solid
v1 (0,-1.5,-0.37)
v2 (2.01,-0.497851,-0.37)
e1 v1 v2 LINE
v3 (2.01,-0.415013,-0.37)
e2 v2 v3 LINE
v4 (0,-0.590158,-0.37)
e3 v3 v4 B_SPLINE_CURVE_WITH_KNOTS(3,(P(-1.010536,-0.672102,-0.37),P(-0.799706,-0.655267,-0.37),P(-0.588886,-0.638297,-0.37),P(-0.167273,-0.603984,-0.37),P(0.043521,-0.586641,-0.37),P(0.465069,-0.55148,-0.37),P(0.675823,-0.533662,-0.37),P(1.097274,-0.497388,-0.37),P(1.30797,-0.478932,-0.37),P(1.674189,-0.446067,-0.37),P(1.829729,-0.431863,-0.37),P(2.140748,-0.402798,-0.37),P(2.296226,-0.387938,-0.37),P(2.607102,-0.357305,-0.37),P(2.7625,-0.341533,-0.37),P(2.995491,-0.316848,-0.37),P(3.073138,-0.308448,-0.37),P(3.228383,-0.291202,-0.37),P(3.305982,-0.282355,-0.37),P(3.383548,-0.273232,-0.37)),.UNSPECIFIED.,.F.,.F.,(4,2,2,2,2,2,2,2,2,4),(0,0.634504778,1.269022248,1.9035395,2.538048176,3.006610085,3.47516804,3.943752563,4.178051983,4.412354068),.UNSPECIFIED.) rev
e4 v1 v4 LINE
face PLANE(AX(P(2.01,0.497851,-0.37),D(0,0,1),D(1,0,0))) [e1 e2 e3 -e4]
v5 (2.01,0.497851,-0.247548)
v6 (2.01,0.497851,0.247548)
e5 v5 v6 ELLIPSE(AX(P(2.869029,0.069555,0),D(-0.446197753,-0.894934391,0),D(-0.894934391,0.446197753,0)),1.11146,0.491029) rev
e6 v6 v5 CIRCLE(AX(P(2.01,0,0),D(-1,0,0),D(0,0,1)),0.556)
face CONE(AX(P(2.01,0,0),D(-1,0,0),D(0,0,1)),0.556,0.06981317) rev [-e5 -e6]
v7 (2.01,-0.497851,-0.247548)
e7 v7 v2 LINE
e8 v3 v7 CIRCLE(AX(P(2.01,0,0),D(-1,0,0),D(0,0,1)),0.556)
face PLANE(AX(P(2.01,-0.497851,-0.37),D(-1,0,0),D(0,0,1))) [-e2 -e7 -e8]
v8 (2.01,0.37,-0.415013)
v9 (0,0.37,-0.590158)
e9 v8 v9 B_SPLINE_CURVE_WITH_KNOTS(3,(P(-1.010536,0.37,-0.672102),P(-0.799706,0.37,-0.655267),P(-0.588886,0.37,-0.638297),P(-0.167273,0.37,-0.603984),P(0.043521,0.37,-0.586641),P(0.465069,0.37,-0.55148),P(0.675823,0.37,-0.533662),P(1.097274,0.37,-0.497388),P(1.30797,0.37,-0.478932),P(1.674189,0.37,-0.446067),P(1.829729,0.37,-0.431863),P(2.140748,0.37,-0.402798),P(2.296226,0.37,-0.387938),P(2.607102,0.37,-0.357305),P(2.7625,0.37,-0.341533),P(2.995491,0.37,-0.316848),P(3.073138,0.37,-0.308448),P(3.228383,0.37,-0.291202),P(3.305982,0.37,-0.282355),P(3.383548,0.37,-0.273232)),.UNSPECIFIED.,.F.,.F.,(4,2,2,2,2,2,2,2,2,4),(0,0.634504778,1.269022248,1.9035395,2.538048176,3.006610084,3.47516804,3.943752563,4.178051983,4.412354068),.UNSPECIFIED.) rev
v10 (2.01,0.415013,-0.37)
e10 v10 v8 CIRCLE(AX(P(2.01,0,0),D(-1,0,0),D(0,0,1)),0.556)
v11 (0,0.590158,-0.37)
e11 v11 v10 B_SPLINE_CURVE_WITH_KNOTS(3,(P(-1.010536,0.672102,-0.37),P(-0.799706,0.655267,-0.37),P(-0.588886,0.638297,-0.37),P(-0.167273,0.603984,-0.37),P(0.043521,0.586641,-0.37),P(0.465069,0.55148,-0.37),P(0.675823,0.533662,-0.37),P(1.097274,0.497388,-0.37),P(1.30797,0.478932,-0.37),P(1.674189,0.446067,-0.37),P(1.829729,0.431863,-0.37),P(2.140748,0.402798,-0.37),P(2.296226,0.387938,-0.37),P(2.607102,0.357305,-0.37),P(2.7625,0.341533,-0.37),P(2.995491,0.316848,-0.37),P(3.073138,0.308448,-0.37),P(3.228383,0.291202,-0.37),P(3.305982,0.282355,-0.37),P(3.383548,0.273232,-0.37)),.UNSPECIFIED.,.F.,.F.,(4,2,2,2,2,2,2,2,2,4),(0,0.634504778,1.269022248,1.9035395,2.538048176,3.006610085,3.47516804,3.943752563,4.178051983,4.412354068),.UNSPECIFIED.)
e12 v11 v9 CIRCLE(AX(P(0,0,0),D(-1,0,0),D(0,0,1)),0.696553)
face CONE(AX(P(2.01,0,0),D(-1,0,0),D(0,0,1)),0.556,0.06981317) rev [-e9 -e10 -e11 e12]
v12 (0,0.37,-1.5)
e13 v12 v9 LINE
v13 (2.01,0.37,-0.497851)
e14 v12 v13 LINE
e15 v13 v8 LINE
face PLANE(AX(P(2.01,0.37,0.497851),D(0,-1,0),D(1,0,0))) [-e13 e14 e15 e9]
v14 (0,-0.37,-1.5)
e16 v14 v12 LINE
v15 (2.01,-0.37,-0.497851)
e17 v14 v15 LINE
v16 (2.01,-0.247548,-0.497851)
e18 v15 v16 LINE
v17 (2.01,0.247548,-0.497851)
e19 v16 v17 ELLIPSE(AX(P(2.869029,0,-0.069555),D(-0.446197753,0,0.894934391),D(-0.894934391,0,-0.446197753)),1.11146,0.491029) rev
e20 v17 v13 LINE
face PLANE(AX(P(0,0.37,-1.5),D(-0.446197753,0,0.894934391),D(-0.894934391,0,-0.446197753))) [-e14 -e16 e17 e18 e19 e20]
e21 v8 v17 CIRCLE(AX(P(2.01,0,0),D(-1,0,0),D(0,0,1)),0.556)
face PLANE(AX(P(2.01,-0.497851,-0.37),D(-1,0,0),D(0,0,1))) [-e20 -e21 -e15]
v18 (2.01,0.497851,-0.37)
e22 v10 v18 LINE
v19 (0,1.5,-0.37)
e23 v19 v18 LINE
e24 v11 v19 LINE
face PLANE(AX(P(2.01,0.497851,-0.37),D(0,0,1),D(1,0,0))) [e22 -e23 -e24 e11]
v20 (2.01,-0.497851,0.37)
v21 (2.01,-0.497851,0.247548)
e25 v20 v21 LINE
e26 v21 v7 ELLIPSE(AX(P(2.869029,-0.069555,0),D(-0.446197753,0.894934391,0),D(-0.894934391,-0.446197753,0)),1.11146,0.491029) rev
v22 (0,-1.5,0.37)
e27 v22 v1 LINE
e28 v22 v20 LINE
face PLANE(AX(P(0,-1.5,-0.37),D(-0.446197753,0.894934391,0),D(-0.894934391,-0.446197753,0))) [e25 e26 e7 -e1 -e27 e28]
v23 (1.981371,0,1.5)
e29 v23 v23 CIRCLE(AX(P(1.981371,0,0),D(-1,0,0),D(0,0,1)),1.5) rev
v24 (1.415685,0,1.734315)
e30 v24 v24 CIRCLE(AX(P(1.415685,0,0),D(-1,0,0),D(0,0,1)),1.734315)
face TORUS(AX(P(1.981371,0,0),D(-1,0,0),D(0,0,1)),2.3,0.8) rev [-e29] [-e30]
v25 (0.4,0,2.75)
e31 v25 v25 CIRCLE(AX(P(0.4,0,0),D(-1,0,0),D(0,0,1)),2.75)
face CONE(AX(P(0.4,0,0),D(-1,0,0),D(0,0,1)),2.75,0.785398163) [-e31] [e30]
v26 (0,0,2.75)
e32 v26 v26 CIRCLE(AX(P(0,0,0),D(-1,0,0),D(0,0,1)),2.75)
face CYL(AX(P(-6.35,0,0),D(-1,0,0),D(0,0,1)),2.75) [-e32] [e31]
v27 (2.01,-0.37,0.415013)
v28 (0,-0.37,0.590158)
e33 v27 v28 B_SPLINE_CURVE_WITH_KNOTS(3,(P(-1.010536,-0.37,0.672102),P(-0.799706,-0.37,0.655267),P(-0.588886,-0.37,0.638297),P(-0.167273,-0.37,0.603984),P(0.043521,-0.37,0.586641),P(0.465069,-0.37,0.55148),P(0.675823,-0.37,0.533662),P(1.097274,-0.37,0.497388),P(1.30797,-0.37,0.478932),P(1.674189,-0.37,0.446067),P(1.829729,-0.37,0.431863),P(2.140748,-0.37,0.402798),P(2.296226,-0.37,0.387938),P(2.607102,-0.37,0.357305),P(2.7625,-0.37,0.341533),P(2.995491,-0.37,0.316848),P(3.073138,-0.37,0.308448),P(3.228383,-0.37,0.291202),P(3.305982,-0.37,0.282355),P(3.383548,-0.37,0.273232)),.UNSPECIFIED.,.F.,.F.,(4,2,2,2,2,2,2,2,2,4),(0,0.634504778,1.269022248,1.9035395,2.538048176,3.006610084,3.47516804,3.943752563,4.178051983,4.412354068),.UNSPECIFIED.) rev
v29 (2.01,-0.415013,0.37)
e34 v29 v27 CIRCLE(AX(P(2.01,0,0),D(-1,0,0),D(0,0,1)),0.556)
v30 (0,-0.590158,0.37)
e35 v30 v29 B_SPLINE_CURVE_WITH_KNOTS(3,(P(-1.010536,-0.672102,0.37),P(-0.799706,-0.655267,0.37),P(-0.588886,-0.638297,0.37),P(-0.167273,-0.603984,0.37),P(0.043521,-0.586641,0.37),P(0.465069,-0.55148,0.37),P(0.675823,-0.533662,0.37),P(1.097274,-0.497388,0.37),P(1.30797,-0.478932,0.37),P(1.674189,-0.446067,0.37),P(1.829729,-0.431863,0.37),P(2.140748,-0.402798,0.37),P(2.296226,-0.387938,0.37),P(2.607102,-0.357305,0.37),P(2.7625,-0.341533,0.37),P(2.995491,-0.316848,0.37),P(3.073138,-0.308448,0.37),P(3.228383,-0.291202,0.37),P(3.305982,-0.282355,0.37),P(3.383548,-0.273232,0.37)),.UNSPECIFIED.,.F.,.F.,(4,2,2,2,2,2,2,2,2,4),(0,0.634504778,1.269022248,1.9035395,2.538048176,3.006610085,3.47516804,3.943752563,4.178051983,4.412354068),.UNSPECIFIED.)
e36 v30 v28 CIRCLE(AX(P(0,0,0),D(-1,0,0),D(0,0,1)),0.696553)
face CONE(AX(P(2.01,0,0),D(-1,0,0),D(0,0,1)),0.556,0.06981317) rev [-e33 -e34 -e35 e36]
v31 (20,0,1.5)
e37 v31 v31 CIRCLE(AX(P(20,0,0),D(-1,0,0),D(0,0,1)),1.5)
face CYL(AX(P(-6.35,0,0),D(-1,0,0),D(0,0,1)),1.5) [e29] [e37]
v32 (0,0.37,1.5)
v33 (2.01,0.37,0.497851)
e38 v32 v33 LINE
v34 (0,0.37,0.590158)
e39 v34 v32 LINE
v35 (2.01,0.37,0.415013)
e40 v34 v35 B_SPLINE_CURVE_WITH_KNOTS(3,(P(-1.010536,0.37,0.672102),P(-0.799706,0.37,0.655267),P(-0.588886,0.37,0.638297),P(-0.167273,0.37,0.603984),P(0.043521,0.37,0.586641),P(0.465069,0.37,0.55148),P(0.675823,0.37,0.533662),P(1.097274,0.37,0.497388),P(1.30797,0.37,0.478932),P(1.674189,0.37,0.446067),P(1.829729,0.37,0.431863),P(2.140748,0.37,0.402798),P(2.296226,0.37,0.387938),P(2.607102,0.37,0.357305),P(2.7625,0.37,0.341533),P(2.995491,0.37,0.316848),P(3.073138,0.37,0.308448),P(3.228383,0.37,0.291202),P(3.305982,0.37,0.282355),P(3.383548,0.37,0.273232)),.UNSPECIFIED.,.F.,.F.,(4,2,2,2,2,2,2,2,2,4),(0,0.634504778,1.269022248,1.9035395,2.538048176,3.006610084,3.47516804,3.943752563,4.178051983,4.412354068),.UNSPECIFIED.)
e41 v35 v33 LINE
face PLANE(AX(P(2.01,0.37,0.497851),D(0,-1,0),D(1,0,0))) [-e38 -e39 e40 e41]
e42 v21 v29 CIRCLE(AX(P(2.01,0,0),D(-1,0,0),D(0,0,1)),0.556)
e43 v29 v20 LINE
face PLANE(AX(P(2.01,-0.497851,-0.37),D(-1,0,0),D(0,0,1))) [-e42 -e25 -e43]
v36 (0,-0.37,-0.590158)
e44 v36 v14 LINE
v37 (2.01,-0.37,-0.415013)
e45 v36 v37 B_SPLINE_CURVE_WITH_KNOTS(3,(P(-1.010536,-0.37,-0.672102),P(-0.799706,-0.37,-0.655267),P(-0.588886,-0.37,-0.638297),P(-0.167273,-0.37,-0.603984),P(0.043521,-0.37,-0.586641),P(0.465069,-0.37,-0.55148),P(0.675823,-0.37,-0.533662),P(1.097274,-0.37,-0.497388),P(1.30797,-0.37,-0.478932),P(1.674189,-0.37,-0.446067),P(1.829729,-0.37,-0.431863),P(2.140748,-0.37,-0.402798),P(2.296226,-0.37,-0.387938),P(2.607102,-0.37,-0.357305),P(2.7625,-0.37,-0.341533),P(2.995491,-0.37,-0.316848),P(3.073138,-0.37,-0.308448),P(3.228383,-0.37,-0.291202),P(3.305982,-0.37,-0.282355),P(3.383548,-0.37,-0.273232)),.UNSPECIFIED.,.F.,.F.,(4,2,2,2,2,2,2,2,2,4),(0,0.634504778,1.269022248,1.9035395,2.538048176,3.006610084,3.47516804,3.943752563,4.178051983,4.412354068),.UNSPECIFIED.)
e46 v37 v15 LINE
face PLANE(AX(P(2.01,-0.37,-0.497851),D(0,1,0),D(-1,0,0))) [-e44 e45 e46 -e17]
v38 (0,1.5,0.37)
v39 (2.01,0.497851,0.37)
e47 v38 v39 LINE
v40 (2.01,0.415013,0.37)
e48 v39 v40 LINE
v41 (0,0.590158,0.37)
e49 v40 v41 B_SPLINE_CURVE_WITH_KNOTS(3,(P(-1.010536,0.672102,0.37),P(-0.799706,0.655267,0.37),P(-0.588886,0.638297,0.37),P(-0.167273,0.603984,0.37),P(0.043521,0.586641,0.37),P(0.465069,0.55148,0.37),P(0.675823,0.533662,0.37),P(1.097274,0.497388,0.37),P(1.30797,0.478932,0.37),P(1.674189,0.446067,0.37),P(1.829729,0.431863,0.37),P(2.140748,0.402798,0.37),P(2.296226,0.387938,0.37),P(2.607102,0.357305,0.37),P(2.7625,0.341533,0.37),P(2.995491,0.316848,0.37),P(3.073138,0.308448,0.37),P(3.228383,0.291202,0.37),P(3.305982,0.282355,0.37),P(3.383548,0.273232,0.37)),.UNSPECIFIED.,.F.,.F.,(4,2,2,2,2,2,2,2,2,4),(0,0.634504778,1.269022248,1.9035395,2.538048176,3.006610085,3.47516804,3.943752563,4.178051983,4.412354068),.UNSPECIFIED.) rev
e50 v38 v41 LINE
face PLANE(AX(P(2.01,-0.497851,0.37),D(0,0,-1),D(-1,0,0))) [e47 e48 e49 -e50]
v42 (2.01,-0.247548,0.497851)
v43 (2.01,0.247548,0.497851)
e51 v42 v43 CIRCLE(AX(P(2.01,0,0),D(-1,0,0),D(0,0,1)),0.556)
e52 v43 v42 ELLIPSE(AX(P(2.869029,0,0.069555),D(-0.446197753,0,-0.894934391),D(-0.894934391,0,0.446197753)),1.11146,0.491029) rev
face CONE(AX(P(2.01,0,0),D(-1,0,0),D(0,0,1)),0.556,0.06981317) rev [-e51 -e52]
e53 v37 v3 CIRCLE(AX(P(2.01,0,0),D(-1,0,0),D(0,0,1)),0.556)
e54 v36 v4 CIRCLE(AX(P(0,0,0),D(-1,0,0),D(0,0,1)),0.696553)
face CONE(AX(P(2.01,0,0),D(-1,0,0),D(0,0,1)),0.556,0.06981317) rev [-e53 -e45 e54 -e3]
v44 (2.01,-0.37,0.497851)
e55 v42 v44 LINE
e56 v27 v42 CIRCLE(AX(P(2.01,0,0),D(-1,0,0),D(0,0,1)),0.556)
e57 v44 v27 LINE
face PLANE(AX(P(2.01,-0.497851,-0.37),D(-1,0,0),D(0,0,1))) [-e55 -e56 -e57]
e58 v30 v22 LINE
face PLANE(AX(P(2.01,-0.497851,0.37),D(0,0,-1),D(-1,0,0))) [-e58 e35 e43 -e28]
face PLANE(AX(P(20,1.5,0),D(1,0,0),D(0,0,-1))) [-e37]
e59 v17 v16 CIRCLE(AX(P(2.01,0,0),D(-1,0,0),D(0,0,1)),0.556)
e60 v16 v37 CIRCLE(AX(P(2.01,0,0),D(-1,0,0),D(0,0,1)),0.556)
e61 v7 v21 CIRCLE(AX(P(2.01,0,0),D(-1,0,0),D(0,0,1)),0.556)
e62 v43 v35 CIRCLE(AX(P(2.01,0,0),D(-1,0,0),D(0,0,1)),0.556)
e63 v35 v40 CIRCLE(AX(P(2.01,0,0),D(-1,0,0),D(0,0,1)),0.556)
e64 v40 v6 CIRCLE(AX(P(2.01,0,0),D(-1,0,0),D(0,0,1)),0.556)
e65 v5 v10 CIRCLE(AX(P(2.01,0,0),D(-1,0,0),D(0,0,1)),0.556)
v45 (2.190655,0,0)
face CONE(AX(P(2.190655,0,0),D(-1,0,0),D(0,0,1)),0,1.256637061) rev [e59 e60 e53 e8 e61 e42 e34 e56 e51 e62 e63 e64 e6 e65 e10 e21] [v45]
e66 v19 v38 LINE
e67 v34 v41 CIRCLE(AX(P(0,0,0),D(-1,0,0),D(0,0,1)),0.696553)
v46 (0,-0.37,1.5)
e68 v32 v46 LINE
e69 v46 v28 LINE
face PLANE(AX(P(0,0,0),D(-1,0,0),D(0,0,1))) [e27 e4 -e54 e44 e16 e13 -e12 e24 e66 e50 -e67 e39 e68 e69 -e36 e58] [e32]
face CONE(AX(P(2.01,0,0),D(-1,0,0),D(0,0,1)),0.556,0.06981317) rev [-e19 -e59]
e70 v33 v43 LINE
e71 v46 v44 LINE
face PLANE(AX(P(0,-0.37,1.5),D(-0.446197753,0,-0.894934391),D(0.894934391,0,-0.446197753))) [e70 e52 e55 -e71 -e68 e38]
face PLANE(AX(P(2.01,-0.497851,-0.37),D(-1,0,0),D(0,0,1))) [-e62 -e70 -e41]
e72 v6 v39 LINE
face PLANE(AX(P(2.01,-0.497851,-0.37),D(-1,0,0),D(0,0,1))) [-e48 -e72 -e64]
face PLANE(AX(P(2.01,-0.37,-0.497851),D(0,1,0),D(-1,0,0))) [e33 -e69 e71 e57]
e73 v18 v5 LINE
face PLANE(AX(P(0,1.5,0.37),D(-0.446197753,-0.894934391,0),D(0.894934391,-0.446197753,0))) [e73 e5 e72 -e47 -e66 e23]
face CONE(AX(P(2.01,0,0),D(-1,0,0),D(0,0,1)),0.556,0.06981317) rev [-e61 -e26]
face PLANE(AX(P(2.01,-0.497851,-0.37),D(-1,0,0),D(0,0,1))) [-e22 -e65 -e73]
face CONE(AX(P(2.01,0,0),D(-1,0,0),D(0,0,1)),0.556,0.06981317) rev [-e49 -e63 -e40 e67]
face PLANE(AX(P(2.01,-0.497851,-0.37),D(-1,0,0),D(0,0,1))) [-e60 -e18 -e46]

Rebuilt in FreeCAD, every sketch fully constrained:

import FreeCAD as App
import Part
import Sketcher

V = App.Vector
Q = App.Units.Quantity


def edges_at(feature, points):
    """Names of the edges that pass closest to the given points."""
    edges = feature.Shape.Edges
    near = lambda p: min(range(len(edges)), key=lambda i: edges[i].distToShape(Part.Vertex(*p))[0])
    return sorted({f"Edge{near(p) + 1}" for p in points})

doc = App.newDocument("Part")
params = doc.addObject("Spreadsheet::Sheet", "Params")
for row, (alias, value) in enumerate([
    ("sketch1_width", "20 mm"),
    ("sketch1_width2", "0.4 mm"),
    ("sketch1_height", "1.5 mm"),
    ("sketch1_width3", "18.35 mm"),
    ("revolution_angle", "360 deg"),
    ("fillet_radius", "0.8 mm"),
    ("sketch2_width", "3 mm"),
    ("sketch2_height", "0.74 mm"),
    ("sketch3_height", "0.74 mm"),
    ("groove_angle", "360 deg"),
], start=1):
    params.set(f"A{row}", alias)
    params.set(f"B{row}", "=" + value)
    params.setAlias(f"B{row}", alias)

body = doc.addObject("PartDesign::Body", "Body")

sketch1 = body.newObject("Sketcher::SketchObject", "Sketch")
sketch1.AttachmentSupport = (doc.getObject("XY_Plane"), [""])
sketch1.MapMode = "FlatFace"
sketch1.addGeometry(Part.LineSegment(V(0, 2.75, 0), V(0, 0, 0)), False)
sketch1.addGeometry(Part.LineSegment(V(0, 0, 0), V(20, 0, 0)), False)
sketch1.addGeometry(Part.LineSegment(V(20, 0, 0), V(20, 1.5, 0)), False)
sketch1.addGeometry(Part.LineSegment(V(20, 1.5, 0), V(1.65, 1.5, 0)), False)
sketch1.addGeometry(Part.LineSegment(V(1.65, 1.5, 0), V(0.4, 2.75, 0)), False)
sketch1.addGeometry(Part.LineSegment(V(0.4, 2.75, 0), V(0, 2.75, 0)), False)
sketch1.addConstraint(Sketcher.Constraint("Coincident", 0, 2, 1, 1))
sketch1.addConstraint(Sketcher.Constraint("Coincident", 1, 2, 2, 1))
sketch1.addConstraint(Sketcher.Constraint("Coincident", 2, 2, 3, 1))
sketch1.addConstraint(Sketcher.Constraint("Coincident", 3, 2, 4, 1))
sketch1.addConstraint(Sketcher.Constraint("Coincident", 4, 2, 5, 1))
sketch1.addConstraint(Sketcher.Constraint("Coincident", 5, 2, 0, 1))
sketch1.addConstraint(Sketcher.Constraint("Vertical", 0))
sketch1.addConstraint(Sketcher.Constraint("Horizontal", 1))
sketch1.addConstraint(Sketcher.Constraint("Vertical", 2))
sketch1.addConstraint(Sketcher.Constraint("Horizontal", 3))
sketch1.addConstraint(Sketcher.Constraint("Horizontal", 5))
sketch1.addConstraint(Sketcher.Constraint("Coincident", 0, 2, -1, 1))
sketch1.addConstraint(Sketcher.Constraint("DistanceX", 1, 1, 1, 2, 20.0))
sketch1.addConstraint(Sketcher.Constraint("Angle", 4, Q("135 deg")))
sketch1.addConstraint(Sketcher.Constraint("DistanceX", 5, 2, 5, 1, 0.4))
sketch1.addConstraint(Sketcher.Constraint("DistanceY", 2, 1, 2, 2, 1.5))
sketch1.addConstraint(Sketcher.Constraint("DistanceX", 3, 2, 3, 1, 18.35))
sketch1.setExpression("Constraints[12]", "Params.sketch1_width")
sketch1.setExpression("Constraints[14]", "Params.sketch1_width2")
sketch1.setExpression("Constraints[15]", "Params.sketch1_height")
sketch1.setExpression("Constraints[16]", "Params.sketch1_width3")
revolution = body.newObject("PartDesign::Revolution", "Revolution")
revolution.Profile = sketch1
revolution.ReferenceAxis = (sketch1, ["H_Axis"])
revolution.setExpression("Angle", "Params.revolution_angle")
doc.recompute()

fillet = body.newObject("PartDesign::Fillet", "Fillet")
fillet.Base = (revolution, edges_at(revolution, [(1.65, 0, -1.5)]))
fillet.setExpression("Radius", "Params.fillet_radius")

sketch2 = body.newObject("Sketcher::SketchObject", "Sketch001")
sketch2.AttachmentSupport = (doc.getObject("YZ_Plane"), [""])
sketch2.MapMode = "FlatFace"
sketch2.addGeometry(Part.LineSegment(V(1.5, 0.4, 0), V(1.5, -0.4, 0)), False)
sketch2.addGeometry(Part.LineSegment(V(1.5, -0.4, 0), V(-1.5, -0.4, 0)), False)
sketch2.addGeometry(Part.LineSegment(V(-1.5, -0.4, 0), V(-1.5, 0.4, 0)), False)
sketch2.addGeometry(Part.LineSegment(V(-1.5, 0.4, 0), V(1.5, 0.4, 0)), False)
sketch2.addConstraint(Sketcher.Constraint("Coincident", 0, 2, 1, 1))
sketch2.addConstraint(Sketcher.Constraint("Coincident", 1, 2, 2, 1))
sketch2.addConstraint(Sketcher.Constraint("Coincident", 2, 2, 3, 1))
sketch2.addConstraint(Sketcher.Constraint("Coincident", 3, 2, 0, 1))
sketch2.addConstraint(Sketcher.Constraint("Vertical", 0))
sketch2.addConstraint(Sketcher.Constraint("Horizontal", 1))
sketch2.addConstraint(Sketcher.Constraint("Vertical", 2))
sketch2.addConstraint(Sketcher.Constraint("Horizontal", 3))
sketch2.addConstraint(Sketcher.Constraint("Symmetric", 0, 2, 2, 2, -1, 1))
sketch2.addConstraint(Sketcher.Constraint("DistanceX", 1, 2, 1, 1, 3.0))
sketch2.addConstraint(Sketcher.Constraint("DistanceY", 0, 2, 0, 1, 0.74))
sketch2.setExpression("Constraints[9]", "Params.sketch2_width")
sketch2.setExpression("Constraints[10]", "Params.sketch2_height")

sketch3 = body.newObject("Sketcher::SketchObject", "Sketch002")
sketch3.AttachmentSupport = (doc.getObject("YZ_Plane"), [""])
sketch3.MapMode = "FlatFace"
sketch3.AttachmentOffset = App.Placement(V(0, 0, 2.01), App.Rotation())
sketch3.addGeometry(Part.LineSegment(V(0.5, 0.4, 0), V(0.5, -0.4, 0)), False)
sketch3.addGeometry(Part.LineSegment(V(0.5, -0.4, 0), V(-0.5, -0.4, 0)), False)
sketch3.addGeometry(Part.LineSegment(V(-0.5, -0.4, 0), V(-0.5, 0.4, 0)), False)
sketch3.addGeometry(Part.LineSegment(V(-0.5, 0.4, 0), V(0.5, 0.4, 0)), False)
sketch3.addConstraint(Sketcher.Constraint("Coincident", 0, 2, 1, 1))
sketch3.addConstraint(Sketcher.Constraint("Coincident", 1, 2, 2, 1))
sketch3.addConstraint(Sketcher.Constraint("Coincident", 2, 2, 3, 1))
sketch3.addConstraint(Sketcher.Constraint("Coincident", 3, 2, 0, 1))
sketch3.addConstraint(Sketcher.Constraint("Vertical", 0))
sketch3.addConstraint(Sketcher.Constraint("Horizontal", 1))
sketch3.addConstraint(Sketcher.Constraint("Vertical", 2))
sketch3.addConstraint(Sketcher.Constraint("Horizontal", 3))
sketch3.addConstraint(Sketcher.Constraint("Symmetric", 0, 2, 2, 2, -1, 1))
sketch3.addConstraint(Sketcher.Constraint("DistanceY", 0, 2, 0, 1, 0.74))
sketch3.addConstraint(Sketcher.Constraint("DistanceX", 1, 2, 1, 1, 0.995702))
sketch3.setExpression("Constraints[9]", "Params.sketch3_height")

subtractiveloft = body.newObject("PartDesign::SubtractiveLoft", "SubtractiveLoft")
subtractiveloft.Profile = sketch2
subtractiveloft.Sections = [sketch3]
doc.recompute()

polarpattern = body.newObject("PartDesign::PolarPattern", "PolarPattern")
polarpattern.Originals = [subtractiveloft]
polarpattern.Axis = (doc.getObject("X_Axis"), [""])
polarpattern.Angle = 90
polarpattern.Occurrences = 2
body.Tip = polarpattern

sketch4 = body.newObject("Sketcher::SketchObject", "Sketch003")
sketch4.AttachmentSupport = (doc.getObject("XY_Plane"), [""])
sketch4.MapMode = "FlatFace"
sketch4.addGeometry(Part.LineSegment(V(0, 0.7, 0), V(0, 0, 0)), False)
sketch4.addGeometry(Part.LineSegment(V(0, 0, 0), V(2.2, 0, 0)), False)
sketch4.addGeometry(Part.LineSegment(V(2.2, 0, 0), V(2, 0.6, 0)), False)
sketch4.addGeometry(Part.LineSegment(V(2, 0.6, 0), V(0, 0.7, 0)), False)
sketch4.addConstraint(Sketcher.Constraint("Coincident", 0, 2, 1, 1))
sketch4.addConstraint(Sketcher.Constraint("Coincident", 1, 2, 2, 1))
sketch4.addConstraint(Sketcher.Constraint("Coincident", 2, 2, 3, 1))
sketch4.addConstraint(Sketcher.Constraint("Coincident", 3, 2, 0, 1))
sketch4.addConstraint(Sketcher.Constraint("Vertical", 0))
sketch4.addConstraint(Sketcher.Constraint("Horizontal", 1))
sketch4.addConstraint(Sketcher.Constraint("Coincident", 0, 2, -1, 1))
sketch4.addConstraint(Sketcher.Constraint("Angle", 2, Q("108 deg")))
sketch4.addConstraint(Sketcher.Constraint("Angle", 3, Q("176 deg")))
sketch4.addConstraint(Sketcher.Constraint("DistanceX", -1, 1, 2, 2, 2.01))
sketch4.addConstraint(Sketcher.Constraint("DistanceY", -1, 1, 2, 2, 0.556))
groove = body.newObject("PartDesign::Groove", "Groove")
groove.Profile = sketch4
groove.ReferenceAxis = (sketch4, ["H_Axis"])
groove.setExpression("Angle", "Params.groove_angle")

doc.recompute()
